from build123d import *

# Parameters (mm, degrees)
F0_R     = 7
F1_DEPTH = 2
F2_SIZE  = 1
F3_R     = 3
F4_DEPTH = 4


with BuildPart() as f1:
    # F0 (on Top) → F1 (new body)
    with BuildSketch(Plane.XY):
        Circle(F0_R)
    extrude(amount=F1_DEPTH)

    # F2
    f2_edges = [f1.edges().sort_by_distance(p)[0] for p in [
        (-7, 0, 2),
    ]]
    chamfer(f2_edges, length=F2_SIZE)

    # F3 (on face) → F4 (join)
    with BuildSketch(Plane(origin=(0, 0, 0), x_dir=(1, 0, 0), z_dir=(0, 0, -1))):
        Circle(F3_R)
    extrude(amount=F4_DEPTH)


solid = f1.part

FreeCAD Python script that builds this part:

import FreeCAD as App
import Part
import Sketcher
from FreeCAD import Vector
Q = App.Units.Quantity


def edges_at(feature, points):
    """Names of the edges that pass closest to the given points."""
    edges = feature.Shape.Edges
    near = lambda p: min(range(len(edges)), key=lambda i: edges[i].distToShape(Part.Vertex(*p))[0])
    return sorted({f"Edge{near(p) + 1}" for p in points})

doc = App.newDocument("Part")
body = doc.addObject("PartDesign::Body", "Body")

# Sketch on XY plane
sketch1 = body.newObject("Sketcher::SketchObject", "Sketch")
sketch1.AttachmentSupport = (doc.getObject("XY_Plane"), [""])
sketch1.MapMode = "FlatFace"
sketch1.addGeometry(Part.Circle(Vector(0, 0, 0), Vector(0, 0, 1), 7), False)
sketch1.addConstraint(Sketcher.Constraint("Coincident", 0, 3, -1, 1))
sketch1.addConstraint(Sketcher.Constraint("Diameter", 0, Q("14 mm")))
pad1 = body.newObject("PartDesign::Pad", "Pad")
pad1.Profile = sketch1
pad1.Length = 2
doc.recompute()

chamfer = body.newObject("PartDesign::Chamfer", "Chamfer")
chamfer.Base = (pad1, edges_at(pad1, [(-7, 0, 2)]))
chamfer.Size = 1

# Sketch on XY plane
sketch2 = body.newObject("Sketcher::SketchObject", "Sketch001")
sketch2.AttachmentSupport = (doc.getObject("XY_Plane"), [""])
sketch2.MapMode = "FlatFace"
sketch2.addGeometry(Part.Circle(Vector(0, 0, 0), Vector(0, 0, 1), 3), False)
sketch2.addConstraint(Sketcher.Constraint("Coincident", 0, 3, -1, 1))
sketch2.addConstraint(Sketcher.Constraint("Diameter", 0, Q("6 mm")))
pad2 = body.newObject("PartDesign::Pad", "Pad001")
pad2.Profile = sketch2
pad2.Length = 4
pad2.Reversed = True

doc.recompute()
